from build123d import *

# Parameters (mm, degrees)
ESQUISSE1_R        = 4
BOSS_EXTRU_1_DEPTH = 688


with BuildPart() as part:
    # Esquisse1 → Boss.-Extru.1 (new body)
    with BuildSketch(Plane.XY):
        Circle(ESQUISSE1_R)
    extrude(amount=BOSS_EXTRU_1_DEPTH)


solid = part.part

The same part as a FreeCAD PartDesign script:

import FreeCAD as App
import Part
import Sketcher

V = App.Vector

doc = App.newDocument("Part")
params = doc.addObject("Spreadsheet::Sheet", "Params")
for row, (alias, value) in enumerate([
    ("sketch1_diameter", "8 mm"),
    ("pad1_length", "688 mm"),
], start=1):
    params.set(f"A{row}", alias)
    params.set(f"B{row}", "=" + value)
    params.setAlias(f"B{row}", alias)

body = doc.addObject("PartDesign::Body", "Body")

# Sketch on XY plane
sketch1 = body.newObject("Sketcher::SketchObject", "Sketch")
sketch1.AttachmentSupport = (doc.getObject("XY_Plane"), [""])
sketch1.MapMode = "FlatFace"
sketch1.addGeometry(Part.Circle(V(0, 0, 0), V(0, 0, 1), 4), False)
sketch1.addConstraint([
    Sketcher.Constraint("Coincident", 0, 3, -1, 1),
    Sketcher.Constraint("Diameter", 0, 8.0),
])
sketch1.setExpression("Constraints[1]", "Params.sketch1_diameter")
pad1 = body.newObject("PartDesign::Pad", "Pad")
pad1.Profile = sketch1
pad1.setExpression("Length", "Params.pad1_length")

doc.recompute()
